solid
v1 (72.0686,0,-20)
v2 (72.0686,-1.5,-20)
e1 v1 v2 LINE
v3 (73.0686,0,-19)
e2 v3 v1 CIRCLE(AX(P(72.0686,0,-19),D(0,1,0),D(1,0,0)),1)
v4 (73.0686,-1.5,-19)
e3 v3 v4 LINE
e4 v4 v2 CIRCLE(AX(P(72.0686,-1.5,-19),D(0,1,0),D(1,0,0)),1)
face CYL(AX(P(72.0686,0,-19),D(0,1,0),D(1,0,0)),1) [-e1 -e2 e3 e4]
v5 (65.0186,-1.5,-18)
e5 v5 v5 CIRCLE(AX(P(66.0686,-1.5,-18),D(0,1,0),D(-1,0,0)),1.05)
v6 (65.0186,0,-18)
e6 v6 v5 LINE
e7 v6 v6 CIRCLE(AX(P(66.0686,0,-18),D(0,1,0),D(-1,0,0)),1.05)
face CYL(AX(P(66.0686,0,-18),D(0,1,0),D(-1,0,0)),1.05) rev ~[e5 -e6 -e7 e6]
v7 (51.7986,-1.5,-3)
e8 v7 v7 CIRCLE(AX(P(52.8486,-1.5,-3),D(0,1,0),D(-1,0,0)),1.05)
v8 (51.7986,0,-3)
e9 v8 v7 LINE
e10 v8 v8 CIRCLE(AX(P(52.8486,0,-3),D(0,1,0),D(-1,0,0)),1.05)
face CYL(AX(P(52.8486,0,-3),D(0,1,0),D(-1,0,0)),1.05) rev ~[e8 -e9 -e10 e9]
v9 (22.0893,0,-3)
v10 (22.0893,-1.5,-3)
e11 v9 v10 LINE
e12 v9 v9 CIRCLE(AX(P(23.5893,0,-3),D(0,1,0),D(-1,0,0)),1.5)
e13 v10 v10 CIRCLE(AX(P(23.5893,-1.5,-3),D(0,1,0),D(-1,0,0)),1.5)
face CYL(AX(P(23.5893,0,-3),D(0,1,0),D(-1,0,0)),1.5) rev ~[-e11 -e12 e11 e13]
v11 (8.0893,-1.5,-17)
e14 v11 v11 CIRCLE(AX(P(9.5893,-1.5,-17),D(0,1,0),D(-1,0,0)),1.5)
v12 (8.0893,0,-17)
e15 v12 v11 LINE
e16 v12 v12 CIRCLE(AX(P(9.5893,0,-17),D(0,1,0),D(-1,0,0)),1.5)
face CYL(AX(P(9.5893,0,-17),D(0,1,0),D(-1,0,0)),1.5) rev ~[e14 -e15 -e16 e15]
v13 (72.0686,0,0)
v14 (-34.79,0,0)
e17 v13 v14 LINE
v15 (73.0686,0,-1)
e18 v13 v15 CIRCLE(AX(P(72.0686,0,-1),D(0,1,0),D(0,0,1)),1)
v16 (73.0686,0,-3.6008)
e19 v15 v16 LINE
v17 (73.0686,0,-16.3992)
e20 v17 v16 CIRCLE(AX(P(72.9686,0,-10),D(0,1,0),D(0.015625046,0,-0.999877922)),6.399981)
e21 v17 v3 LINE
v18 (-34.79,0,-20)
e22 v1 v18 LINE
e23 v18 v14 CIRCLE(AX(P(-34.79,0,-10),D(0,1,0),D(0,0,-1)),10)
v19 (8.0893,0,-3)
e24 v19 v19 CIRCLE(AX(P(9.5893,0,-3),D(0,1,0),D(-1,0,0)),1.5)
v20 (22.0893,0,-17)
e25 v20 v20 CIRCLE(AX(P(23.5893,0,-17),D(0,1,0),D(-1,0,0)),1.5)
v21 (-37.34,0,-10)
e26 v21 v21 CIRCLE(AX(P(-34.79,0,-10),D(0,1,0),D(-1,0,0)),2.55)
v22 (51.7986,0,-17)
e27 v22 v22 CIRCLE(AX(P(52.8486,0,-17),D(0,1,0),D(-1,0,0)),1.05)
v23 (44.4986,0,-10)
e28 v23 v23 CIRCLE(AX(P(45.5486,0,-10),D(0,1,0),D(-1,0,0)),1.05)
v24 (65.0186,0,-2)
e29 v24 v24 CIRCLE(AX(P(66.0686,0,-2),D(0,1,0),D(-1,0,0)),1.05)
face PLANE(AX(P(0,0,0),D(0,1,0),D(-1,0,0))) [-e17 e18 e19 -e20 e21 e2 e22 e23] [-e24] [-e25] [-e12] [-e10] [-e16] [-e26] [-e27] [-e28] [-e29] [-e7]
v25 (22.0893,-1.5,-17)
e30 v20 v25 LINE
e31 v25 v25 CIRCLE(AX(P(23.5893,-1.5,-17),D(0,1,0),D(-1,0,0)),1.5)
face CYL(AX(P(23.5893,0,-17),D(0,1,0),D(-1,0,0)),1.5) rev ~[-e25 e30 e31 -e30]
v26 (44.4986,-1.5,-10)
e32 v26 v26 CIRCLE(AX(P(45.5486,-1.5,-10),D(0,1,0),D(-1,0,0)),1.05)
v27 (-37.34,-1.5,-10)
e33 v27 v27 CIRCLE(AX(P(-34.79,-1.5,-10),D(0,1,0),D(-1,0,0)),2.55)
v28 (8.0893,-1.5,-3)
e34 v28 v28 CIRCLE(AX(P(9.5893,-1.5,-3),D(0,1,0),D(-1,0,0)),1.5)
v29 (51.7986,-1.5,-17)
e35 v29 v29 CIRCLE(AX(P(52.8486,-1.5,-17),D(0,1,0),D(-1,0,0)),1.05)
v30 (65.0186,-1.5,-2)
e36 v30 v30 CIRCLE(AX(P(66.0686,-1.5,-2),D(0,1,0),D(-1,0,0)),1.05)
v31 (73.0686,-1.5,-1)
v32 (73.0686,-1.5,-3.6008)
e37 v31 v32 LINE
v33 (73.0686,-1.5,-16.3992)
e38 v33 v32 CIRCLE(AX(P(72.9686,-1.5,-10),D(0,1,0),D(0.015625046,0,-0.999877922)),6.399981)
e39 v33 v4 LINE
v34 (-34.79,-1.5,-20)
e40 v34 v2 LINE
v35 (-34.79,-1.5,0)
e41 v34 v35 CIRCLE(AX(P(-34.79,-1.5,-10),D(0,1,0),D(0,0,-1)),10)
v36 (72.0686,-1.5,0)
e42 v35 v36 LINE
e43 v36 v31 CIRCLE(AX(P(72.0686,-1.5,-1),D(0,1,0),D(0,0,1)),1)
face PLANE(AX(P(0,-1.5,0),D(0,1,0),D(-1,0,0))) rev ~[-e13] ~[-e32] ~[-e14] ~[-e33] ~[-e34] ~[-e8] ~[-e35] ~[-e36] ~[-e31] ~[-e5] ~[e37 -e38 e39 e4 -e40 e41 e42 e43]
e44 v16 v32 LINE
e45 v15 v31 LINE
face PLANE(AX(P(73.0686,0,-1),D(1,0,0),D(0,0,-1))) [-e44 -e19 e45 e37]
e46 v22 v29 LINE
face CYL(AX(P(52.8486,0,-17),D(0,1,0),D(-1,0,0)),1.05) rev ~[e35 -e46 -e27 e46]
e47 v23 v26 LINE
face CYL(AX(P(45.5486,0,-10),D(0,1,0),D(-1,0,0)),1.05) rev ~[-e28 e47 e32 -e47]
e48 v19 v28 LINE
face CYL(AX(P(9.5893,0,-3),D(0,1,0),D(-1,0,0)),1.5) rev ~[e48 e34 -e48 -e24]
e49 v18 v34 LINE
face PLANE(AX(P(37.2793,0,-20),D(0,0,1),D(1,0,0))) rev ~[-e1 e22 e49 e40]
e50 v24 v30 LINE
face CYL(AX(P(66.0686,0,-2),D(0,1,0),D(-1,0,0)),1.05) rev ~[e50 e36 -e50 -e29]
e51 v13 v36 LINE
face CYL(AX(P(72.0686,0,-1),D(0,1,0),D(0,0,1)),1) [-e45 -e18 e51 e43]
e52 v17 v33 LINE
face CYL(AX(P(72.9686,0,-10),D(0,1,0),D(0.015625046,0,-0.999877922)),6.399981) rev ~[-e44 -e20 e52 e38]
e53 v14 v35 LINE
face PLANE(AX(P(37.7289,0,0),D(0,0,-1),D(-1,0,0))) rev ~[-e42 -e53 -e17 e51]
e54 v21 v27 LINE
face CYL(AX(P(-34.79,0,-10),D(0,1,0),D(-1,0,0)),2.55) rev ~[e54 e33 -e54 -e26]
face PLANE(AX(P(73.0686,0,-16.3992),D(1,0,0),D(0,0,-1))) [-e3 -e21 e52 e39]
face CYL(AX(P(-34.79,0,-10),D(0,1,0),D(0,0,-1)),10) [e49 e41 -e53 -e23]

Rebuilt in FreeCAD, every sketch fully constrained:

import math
import FreeCAD as App
import Part
import Sketcher

doc = App.newDocument("Part")
body = doc.addObject("PartDesign::Body", "Body")

# Sketch on XZ plane
sketch1 = doc.addObject("Sketcher::SketchObject", "Sketch")
body.addObject(sketch1)
sketch1.AttachmentSupport = (doc.XZ_Plane, [""])
sketch1.MapMode = "FlatFace"
sketch1.addGeometry([
    Part.ArcOfCircle(Part.Circle(App.Vector(72.1, -1, 0), App.Vector(0, 0, 1), 1), math.radians(0), math.radians(90)),  # 0
    Part.LineSegment(App.Vector(73.1, -1, 0), App.Vector(73.1, -3.6, 0)),  # 1
    Part.ArcOfCircle(Part.Circle(App.Vector(73, -10, 0), App.Vector(0, 0, 1), 6.4), math.radians(89), math.radians(271)),  # 2
    Part.LineSegment(App.Vector(73.1, -16.4, 0), App.Vector(73.1, -19, 0)),  # 3
    Part.ArcOfCircle(Part.Circle(App.Vector(72.1, -19, 0), App.Vector(0, 0, 1), 1), math.radians(-90), math.radians(0)),  # 4
    Part.LineSegment(App.Vector(72.1, -20, 0), App.Vector(-34.8, -20, 0)),  # 5
    Part.ArcOfCircle(Part.Circle(App.Vector(-34.8, -10, 0), App.Vector(0, 0, 1), 10), math.radians(90), math.radians(270)),  # 6
    Part.LineSegment(App.Vector(-34.8, 0, 0), App.Vector(72.1, 0, 0)),  # 7
    Part.Circle(App.Vector(9.6, -3, 0), App.Vector(0, 0, 1), 1.5),  # 8
    Part.Circle(App.Vector(23.6, -17, 0), App.Vector(0, 0, 1), 1.5),  # 9
    Part.Circle(App.Vector(9.6, -17, 0), App.Vector(0, 0, 1), 1.5),  # 10
    Part.Circle(App.Vector(23.6, -3, 0), App.Vector(0, 0, 1), 1.5),  # 11
    Part.Circle(App.Vector(66.1, -2, 0), App.Vector(0, 0, 1), 1.1),  # 12
    Part.Circle(App.Vector(66.1, -18, 0), App.Vector(0, 0, 1), 1.1),  # 13
    Part.Circle(App.Vector(52.8, -17, 0), App.Vector(0, 0, 1), 1.1),  # 14
    Part.Circle(App.Vector(45.5, -10, 0), App.Vector(0, 0, 1), 1.1),  # 15
    Part.Circle(App.Vector(52.8, -3, 0), App.Vector(0, 0, 1), 1.1),  # 16
    Part.Circle(App.Vector(-34.8, -10, 0), App.Vector(0, 0, 1), 2.5),  # 17
], False)
sketch1.addConstraint([
    Sketcher.Constraint("Tangent", 0, 1, 1, 1),
    Sketcher.Constraint("Coincident", 1, 2, 2, 1),
    Sketcher.Constraint("Coincident", 2, 2, 3, 1),
    Sketcher.Constraint("Tangent", 3, 2, 4, 2),
    Sketcher.Constraint("Tangent", 4, 1, 5, 1),
    Sketcher.Constraint("Tangent", 5, 2, 6, 2),
    Sketcher.Constraint("Tangent", 6, 1, 7, 1),
    Sketcher.Constraint("Tangent", 7, 2, 0, 2),
    Sketcher.Constraint("Vertical", 1),
    Sketcher.Constraint("Vertical", 3),
    Sketcher.Constraint("Horizontal", 5),
    Sketcher.Constraint("Horizontal", 7),
    Sketcher.Constraint("Coincident", 17, 3, 6, 3),
    Sketcher.Constraint("Equal", 0, 4),
    Sketcher.Constraint("Equal", 8, 9),
    Sketcher.Constraint("Equal", 9, 10),
    Sketcher.Constraint("Equal", 10, 11),
    Sketcher.Constraint("Equal", 12, 13),
    Sketcher.Constraint("Equal", 13, 14),
    Sketcher.Constraint("Equal", 14, 15),
    Sketcher.Constraint("Equal", 15, 16),
    Sketcher.Constraint("PointOnObject", 6, 1, -1),
    Sketcher.Constraint("Horizontal", 2, 3, 6, 3),
    Sketcher.Constraint("Horizontal", 9, 3, 10, 3),
    Sketcher.Constraint("Horizontal", 8, 3, 11, 3),
    Sketcher.Constraint("Horizontal", 10, 3, 14, 3),
    Sketcher.Constraint("Horizontal", 6, 3, 15, 3),
    Sketcher.Constraint("Horizontal", 11, 3, 16, 3),
    Sketcher.Constraint("Vertical", 0, 3, 4, 3),
    Sketcher.Constraint("Vertical", 8, 3, 10, 3),
    Sketcher.Constraint("Vertical", 9, 3, 11, 3),
    Sketcher.Constraint("Vertical", 12, 3, 13, 3),
    Sketcher.Constraint("Vertical", 14, 3, 16, 3),
    Sketcher.Constraint("Diameter", 8, 3.0),
    Sketcher.Constraint("Radius", 0, 1.0),
    Sketcher.Constraint("Radius", 6, 10.0),
    Sketcher.Constraint("Diameter", 12, 2.1),
    Sketcher.Constraint("Diameter", 17, 5.1),
    Sketcher.Constraint("Radius", 2, 6.4),
    Sketcher.Constraint("DistanceY", 8, 3, -1, 1, 3.0),
    Sketcher.Constraint("DistanceY", 9, 3, -1, 1, 17.0),
    Sketcher.Constraint("DistanceY", 12, 3, -1, 1, 2.0),
    Sketcher.Constraint("DistanceY", 13, 3, -1, 1, 18.0),
    Sketcher.Constraint("DistanceX", 8, 3, 9, 3, 14.0),
    Sketcher.Constraint("DistanceX", 12, 3, 0, 3, 6.0),
    Sketcher.Constraint("DistanceX", 0, 3, 2, 3, 0.9),
    Sketcher.Constraint("DistanceX", 15, 3, 14, 3, 7.3),
    Sketcher.Constraint("DistanceX", 6, 3, -1, 1, 34.79),
    Sketcher.Constraint("DistanceX", 14, 3, 13, 3, 13.22),
    Sketcher.Constraint("DistanceX", 5, 2, 5, 1, 106.8586),
    Sketcher.Constraint("DistanceX", -1, 1, 8, 3, 9.5893),
])
pad1 = doc.addObject("PartDesign::Pad", "Pad")
body.addObject(pad1)
pad1.Profile = sketch1
pad1.Length = 1.5

doc.recompute()
